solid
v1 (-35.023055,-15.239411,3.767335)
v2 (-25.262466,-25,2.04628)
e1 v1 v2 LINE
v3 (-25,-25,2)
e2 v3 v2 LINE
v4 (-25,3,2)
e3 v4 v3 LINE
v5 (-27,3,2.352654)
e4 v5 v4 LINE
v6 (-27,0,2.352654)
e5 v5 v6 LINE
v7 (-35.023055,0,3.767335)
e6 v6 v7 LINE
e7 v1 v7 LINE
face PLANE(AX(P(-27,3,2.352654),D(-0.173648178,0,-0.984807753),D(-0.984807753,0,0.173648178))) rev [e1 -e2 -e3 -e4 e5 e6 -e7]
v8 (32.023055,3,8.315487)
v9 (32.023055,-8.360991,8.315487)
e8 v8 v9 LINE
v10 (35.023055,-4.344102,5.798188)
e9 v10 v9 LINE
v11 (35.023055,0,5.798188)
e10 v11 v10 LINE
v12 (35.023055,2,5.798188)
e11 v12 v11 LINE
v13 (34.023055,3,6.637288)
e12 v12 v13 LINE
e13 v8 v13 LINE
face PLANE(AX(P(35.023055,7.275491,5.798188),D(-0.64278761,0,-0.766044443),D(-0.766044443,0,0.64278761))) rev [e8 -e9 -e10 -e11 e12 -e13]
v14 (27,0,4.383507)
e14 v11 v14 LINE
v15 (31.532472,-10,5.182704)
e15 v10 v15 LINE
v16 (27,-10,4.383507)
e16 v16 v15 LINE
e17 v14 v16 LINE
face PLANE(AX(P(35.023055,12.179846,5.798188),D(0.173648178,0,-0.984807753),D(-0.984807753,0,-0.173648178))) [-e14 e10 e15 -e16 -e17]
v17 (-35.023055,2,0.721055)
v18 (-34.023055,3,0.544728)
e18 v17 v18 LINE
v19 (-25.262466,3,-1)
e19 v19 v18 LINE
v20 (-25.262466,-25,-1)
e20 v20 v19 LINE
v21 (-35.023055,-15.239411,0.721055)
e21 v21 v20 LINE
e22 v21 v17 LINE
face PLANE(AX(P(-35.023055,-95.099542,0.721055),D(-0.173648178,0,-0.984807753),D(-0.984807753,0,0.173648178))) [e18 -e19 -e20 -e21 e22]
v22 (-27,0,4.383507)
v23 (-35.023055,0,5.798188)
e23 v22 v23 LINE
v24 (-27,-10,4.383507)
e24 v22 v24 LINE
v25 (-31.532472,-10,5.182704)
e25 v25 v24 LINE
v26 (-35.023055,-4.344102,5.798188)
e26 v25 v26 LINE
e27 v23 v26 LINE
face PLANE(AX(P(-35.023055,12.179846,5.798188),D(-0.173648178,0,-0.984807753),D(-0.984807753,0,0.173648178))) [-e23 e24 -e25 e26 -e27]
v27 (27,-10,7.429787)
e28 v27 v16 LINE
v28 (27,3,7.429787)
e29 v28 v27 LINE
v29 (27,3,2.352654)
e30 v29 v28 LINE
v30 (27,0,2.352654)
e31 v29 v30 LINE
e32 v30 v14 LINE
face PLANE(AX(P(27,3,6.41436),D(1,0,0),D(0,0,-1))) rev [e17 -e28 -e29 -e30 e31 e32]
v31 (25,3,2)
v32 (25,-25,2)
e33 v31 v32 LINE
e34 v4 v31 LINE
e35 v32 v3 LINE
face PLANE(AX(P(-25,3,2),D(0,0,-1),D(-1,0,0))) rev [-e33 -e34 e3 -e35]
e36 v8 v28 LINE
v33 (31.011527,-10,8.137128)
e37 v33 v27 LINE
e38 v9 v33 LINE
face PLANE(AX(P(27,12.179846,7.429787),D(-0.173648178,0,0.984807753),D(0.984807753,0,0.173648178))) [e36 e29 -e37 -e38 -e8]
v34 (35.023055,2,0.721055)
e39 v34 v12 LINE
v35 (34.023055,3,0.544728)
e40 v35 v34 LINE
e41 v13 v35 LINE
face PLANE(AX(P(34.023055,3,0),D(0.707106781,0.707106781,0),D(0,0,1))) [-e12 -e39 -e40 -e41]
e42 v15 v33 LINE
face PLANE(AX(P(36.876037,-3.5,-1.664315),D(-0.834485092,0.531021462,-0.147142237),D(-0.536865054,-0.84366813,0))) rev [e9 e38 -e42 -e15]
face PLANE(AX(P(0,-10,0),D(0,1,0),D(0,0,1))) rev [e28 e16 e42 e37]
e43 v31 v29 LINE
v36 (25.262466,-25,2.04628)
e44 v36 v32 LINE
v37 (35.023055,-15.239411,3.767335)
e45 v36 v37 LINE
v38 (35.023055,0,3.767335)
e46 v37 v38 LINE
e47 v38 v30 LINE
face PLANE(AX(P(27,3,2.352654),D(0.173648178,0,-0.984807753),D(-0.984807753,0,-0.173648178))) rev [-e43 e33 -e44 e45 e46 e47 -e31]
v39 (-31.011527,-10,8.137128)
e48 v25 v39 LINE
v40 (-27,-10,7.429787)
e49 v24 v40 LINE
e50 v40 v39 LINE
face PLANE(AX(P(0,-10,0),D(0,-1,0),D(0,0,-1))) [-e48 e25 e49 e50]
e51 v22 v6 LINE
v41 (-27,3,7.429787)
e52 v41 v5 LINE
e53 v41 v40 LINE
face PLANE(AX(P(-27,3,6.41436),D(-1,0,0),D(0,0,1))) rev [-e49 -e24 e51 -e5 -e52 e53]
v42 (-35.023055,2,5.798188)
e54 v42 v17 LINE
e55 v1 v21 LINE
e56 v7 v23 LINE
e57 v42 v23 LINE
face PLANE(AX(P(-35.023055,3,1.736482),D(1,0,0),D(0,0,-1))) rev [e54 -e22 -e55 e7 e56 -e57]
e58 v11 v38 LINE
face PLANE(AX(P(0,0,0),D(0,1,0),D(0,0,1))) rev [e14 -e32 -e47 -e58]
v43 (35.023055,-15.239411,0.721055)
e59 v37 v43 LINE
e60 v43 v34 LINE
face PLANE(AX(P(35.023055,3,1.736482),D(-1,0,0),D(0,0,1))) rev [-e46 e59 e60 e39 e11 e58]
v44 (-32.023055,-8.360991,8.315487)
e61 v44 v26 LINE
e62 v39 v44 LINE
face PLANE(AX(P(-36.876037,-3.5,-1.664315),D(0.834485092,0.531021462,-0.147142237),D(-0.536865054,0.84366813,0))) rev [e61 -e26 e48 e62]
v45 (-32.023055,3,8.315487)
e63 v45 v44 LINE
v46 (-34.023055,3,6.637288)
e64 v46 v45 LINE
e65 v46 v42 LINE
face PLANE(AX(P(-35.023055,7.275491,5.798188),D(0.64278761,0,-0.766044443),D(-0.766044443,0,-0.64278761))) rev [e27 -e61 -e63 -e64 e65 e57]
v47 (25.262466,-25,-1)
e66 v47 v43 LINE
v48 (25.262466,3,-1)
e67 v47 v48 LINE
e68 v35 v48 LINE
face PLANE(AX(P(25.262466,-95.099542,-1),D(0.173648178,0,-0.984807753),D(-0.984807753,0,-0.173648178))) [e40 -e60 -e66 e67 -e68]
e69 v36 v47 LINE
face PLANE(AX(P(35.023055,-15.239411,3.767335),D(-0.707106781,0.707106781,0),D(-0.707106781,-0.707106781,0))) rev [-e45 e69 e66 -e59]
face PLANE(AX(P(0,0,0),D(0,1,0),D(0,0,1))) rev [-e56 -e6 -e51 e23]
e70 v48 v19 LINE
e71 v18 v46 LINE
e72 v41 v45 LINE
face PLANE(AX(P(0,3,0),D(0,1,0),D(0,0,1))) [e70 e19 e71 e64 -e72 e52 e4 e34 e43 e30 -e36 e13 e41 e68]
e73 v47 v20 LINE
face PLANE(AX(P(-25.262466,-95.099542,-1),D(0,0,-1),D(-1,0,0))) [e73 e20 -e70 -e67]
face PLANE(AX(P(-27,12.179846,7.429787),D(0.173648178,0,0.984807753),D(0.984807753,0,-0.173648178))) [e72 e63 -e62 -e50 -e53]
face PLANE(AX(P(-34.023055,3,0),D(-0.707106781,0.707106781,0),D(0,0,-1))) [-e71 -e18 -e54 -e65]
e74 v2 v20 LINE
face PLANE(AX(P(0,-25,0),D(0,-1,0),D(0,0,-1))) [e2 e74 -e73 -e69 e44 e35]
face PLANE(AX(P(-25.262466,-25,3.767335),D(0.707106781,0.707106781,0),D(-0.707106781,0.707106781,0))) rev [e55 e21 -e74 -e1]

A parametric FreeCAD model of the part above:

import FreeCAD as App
import Part
import Sketcher
Q = App.Units.Quantity


def edges_at(feature, points):
    """Names of the edges that pass closest to the given points."""
    edges = feature.Shape.Edges
    near = lambda p: min(range(len(edges)), key=lambda i: edges[i].distToShape(Part.Vertex(*p))[0])
    return sorted({f"Edge{near(p) + 1}" for p in points})


def add_polygon(sketch, points):
    """Adds a closed chain of lines whose ends are joined by coincident constraints."""
    first, n = sketch.GeometryCount, len(points)
    for a, b in zip(points, points[1:] + points[:1]):
        sketch.addGeometry(Part.LineSegment(App.Vector(*a, 0), App.Vector(*b, 0)), False)
    for i in range(n):
        sketch.addConstraint(Sketcher.Constraint("Coincident", first + i, 2, first + (i + 1) % n, 1))

doc = App.newDocument("Part")
body = doc.addObject("PartDesign::Body", "Body")

# Sketch on XZ plane
sketch1 = doc.addObject("Sketcher::SketchObject", "Sketch")
body.addObject(sketch1)
sketch1.AttachmentSupport = (doc.XZ_Plane, [""])
sketch1.MapMode = "FlatFace"
add_polygon(sketch1, [(-27, 6.4), (-27, 2.4), (-25, 2), (25, 2), (27, 2.4), (27, 6.4), (35, 7.8), (35, 1.7), (25.2, 0), (-25.2, 0), (-35, 1.7), (-35, 7.8)])  # lines 0-11
sketch1.addConstraint([
    Sketcher.Constraint("Vertical", 0),
    Sketcher.Constraint("Horizontal", 2),
    Sketcher.Constraint("Vertical", 4),
    Sketcher.Constraint("Vertical", 6),
    Sketcher.Constraint("Horizontal", 8),
    Sketcher.Constraint("Vertical", 10),
    Sketcher.Constraint("Symmetric", 7, 2, 8, 2, -1, 1),
    Sketcher.Constraint("Symmetric", 0, 2, 3, 2, -2),
    Sketcher.Constraint("Symmetric", 6, 2, 9, 2, -2),
    Sketcher.Constraint("Parallel", 3, 5),
    Sketcher.Constraint("Parallel", 5, 7),
    Sketcher.Constraint("Parallel", 1, 9),
    Sketcher.Constraint("Parallel", 9, 11),
    Sketcher.Constraint("Horizontal", 5, 2, 10, 2),
    Sketcher.Constraint("DistanceX", 2, 1, 2, 2, 50.0),
    Sketcher.Constraint("Angle", 1, Q("-10 deg")),
    Sketcher.Constraint("Distance", 7, 10.0),
    Sketcher.Constraint("DistanceX", 0, 2, -1, 1, 27.0),
    Sketcher.Constraint("DistanceY", -1, 1, 1, 2, 2.0),
    Sketcher.Constraint("DistanceY", 6, 2, 6, 1, 6.09256),
    Sketcher.Constraint("DistanceX", 8, 2, 8, 1, 50.349955),
])
pad1 = doc.addObject("PartDesign::Pad", "Pad")
body.addObject(pad1)
pad1.Profile = sketch1
pad1.Length = 3
pad1.Reversed = True

# Sketch on XZ plane
sketch2 = doc.addObject("Sketcher::SketchObject", "Sketch001")
body.addObject(sketch2)
sketch2.AttachmentSupport = (doc.XZ_Plane, [""])
sketch2.MapMode = "FlatFace"
add_polygon(sketch2, [(25.2, 0), (35, 1.7), (35, 3.8), (27, 2.4), (25, 2), (-25, 2), (-27, 2.4), (-35, 3.8), (-35, 1.7), (-25.2, 0)])  # lines 0-9
sketch2.addConstraint([
    Sketcher.Constraint("Vertical", 1),
    Sketcher.Constraint("Horizontal", 4),
    Sketcher.Constraint("Vertical", 7),
    Sketcher.Constraint("Horizontal", 9),
    Sketcher.Constraint("Symmetric", 8, 2, 9, 2, -1, 1),
    Sketcher.Constraint("Symmetric", 2, 2, 5, 2, -2),
    Sketcher.Constraint("Symmetric", 1, 2, 6, 2, -2),
    Sketcher.Constraint("Parallel", 0, 2),
    Sketcher.Constraint("Parallel", 2, 3),
    Sketcher.Constraint("Parallel", 5, 6),
    Sketcher.Constraint("Parallel", 6, 8),
    Sketcher.Constraint("DistanceX", 4, 2, 4, 1, 50.0),
    Sketcher.Constraint("Angle", 0, Q("10 deg")),
    Sketcher.Constraint("Distance", 0, 10.0),
    Sketcher.Constraint("DistanceX", -1, 1, 2, 2, 27.0),
    Sketcher.Constraint("DistanceY", -1, 1, 3, 2, 2.0),
    Sketcher.Constraint("DistanceX", 9, 1, 9, 2, 50.349955),
])
pad2 = doc.addObject("PartDesign::Pad", "Pad001")
body.addObject(pad2)
pad2.Profile = sketch2
pad2.Length = 25

# Sketch on XZ plane
sketch3 = doc.addObject("Sketcher::SketchObject", "Sketch002")
body.addObject(sketch3)
sketch3.AttachmentSupport = (doc.XZ_Plane, [""])
sketch3.MapMode = "FlatFace"
sketch3.AttachmentOffset = App.Placement(App.Vector(0, 0, -3), App.Rotation())
add_polygon(sketch3, [(-35, 5.8), (-27, 4.4), (-27, 7.4), (-35, 8.8)])  # lines 0-3
add_polygon(sketch3, [(35, 8.8), (27, 7.4), (27, 4.4), (35, 5.8)])  # lines 4-7
sketch3.addConstraint([
    Sketcher.Constraint("Vertical", 1),
    Sketcher.Constraint("Vertical", 3),
    Sketcher.Constraint("Vertical", 5),
    Sketcher.Constraint("Vertical", 7),
    Sketcher.Constraint("Symmetric", 1, 2, 4, 2, -2),
    Sketcher.Constraint("Symmetric", 3, 2, 6, 2, -2),
    Sketcher.Constraint("Parallel", 0, 2),
    Sketcher.Constraint("Parallel", 4, 6),
    Sketcher.Constraint("Horizontal", 0, 2, 5, 2),
    Sketcher.Constraint("Angle", 0, Q("-10 deg")),
    Sketcher.Constraint("DistanceX", 0, 2, -1, 1, 27.0),
    Sketcher.Constraint("DistanceY", 1, 1, 1, 2, 3.04628),
    Sketcher.Constraint("DistanceY", 3, 2, 1, 2, 1.631599),
    Sketcher.Constraint("DistanceY", -1, 1, 2, 2, 8.844468),
])
pad3 = doc.addObject("PartDesign::Pad", "Pad002")
body.addObject(pad3)
pad3.Profile = sketch3
pad3.Length = 13

# Sketch on XZ plane
sketch4 = doc.addObject("Sketcher::SketchObject", "Sketch003")
body.addObject(sketch4)
sketch4.AttachmentSupport = (doc.XZ_Plane, [""])
sketch4.MapMode = "FlatFace"
sketch4.AttachmentOffset = App.Placement(App.Vector(0, 0, -3), App.Rotation())
add_polygon(sketch4, [(-25.3, -1), (-35, 0.7), (-35, 1.7), (-25.2, 0), (25.2, 0), (35, 1.7), (35, 0.7), (25.3, -1)])  # lines 0-7
sketch4.addConstraint([
    Sketcher.Constraint("Vertical", 1),
    Sketcher.Constraint("Horizontal", 3),
    Sketcher.Constraint("Vertical", 5),
    Sketcher.Constraint("Horizontal", 7),
    Sketcher.Constraint("Symmetric", 2, 2, 3, 2, -1, 1),
    Sketcher.Constraint("Symmetric", 1, 2, 4, 2, -2),
    Sketcher.Constraint("Parallel", 0, 2),
    Sketcher.Constraint("Parallel", 4, 6),
    Sketcher.Constraint("Horizontal", 0, 2, 5, 2),
    Sketcher.Constraint("Angle", 0, Q("170 deg")),
    Sketcher.Constraint("Distance", 2, 10.0),
    Sketcher.Constraint("DistanceY", 6, 2, -1, 1, 1.0),
    Sketcher.Constraint("DistanceX", 7, 2, 7, 1, 50.524932),
    Sketcher.Constraint("Distance", 0, 9.911162),
])
pad4 = doc.addObject("PartDesign::Pad", "Pad003")
body.addObject(pad4)
pad4.Profile = sketch4
pad4.Length = 28

# Sketch on XY plane
sketch5 = doc.addObject("Sketcher::SketchObject", "Sketch004")
body.addObject(sketch5)
sketch5.AttachmentSupport = (doc.XY_Plane, [""])
sketch5.MapMode = "FlatFace"
sketch5.AttachmentOffset = App.Placement(App.Vector(0, 0, 3.767335), App.Rotation())
add_polygon(sketch5, [(35, -25), (25, -25), (35, -15)])  # lines 0-2
add_polygon(sketch5, [(-35, -15), (-25, -25), (-35, -25)])  # lines 3-5
sketch5.addConstraint([
    Sketcher.Constraint("Horizontal", 0),
    Sketcher.Constraint("Vertical", 2),
    Sketcher.Constraint("Horizontal", 4),
    Sketcher.Constraint("Vertical", 5),
    Sketcher.Constraint("Symmetric", 0, 2, 3, 2, -2),
    Sketcher.Constraint("Symmetric", 1, 2, 5, 2, -2),
    Sketcher.Constraint("Perpendicular", 1, 3),
    Sketcher.Constraint("DistanceY", 0, 2, -1, 1, 25.0),
    Sketcher.Constraint("DistanceX", 0, 2, 0, 1, 9.760589),
    Sketcher.Constraint("DistanceX", 3, 2, 0, 2, 50.524932),
])
pocket1 = doc.addObject("PartDesign::Pocket", "Pocket")
body.addObject(pocket1)
pocket1.Profile = sketch5
pocket1.Length = 4.767335

# Sketch on an angled plane
sketch6 = doc.addObject("Sketcher::SketchObject", "Sketch005")
body.addObject(sketch6)
sketch6.Placement = App.Placement(App.Vector(0.456419, 0, 2.58848), App.Rotation(App.Vector(0.984807753, 0, -0.173648178), App.Vector(0, 1, 0), App.Vector(0.173648178, 0, 0.984807753), "ZXY"))
add_polygon(sketch6, [(-32, -10), (-36, -3.5), (-36, -10)])  # lines 0-2
sketch6.addConstraint([
    Sketcher.Constraint("Vertical", 1),
    Sketcher.Constraint("Horizontal", 2),
    Sketcher.Constraint("DistanceY", 1, 2, 1, 1, 6.5),
    Sketcher.Constraint("DistanceY", 1, 2, -1, 1, 10.0),
    Sketcher.Constraint("Distance", 0, 7.670898),
    Sketcher.Constraint("DistanceX", 0, 2, -1, 1, 36.026802),
])
pocket2 = doc.addObject("PartDesign::Pocket", "Pocket001")
body.addObject(pocket2)
pocket2.Profile = sketch6
pocket2.Length = 3

# Sketch on an angled plane
sketch7 = doc.addObject("Sketcher::SketchObject", "Sketch006")
body.addObject(sketch7)
sketch7.Placement = App.Placement(App.Vector(-0.456419, 0, 2.58848), App.Rotation(App.Vector(0.984807753, 0, 0.173648178), App.Vector(0, 1, 0), App.Vector(-0.173648178, 0, 0.984807753), "ZXY"))
add_polygon(sketch7, [(36, -3.5), (32, -10), (36, -10)])  # lines 0-2
sketch7.addConstraint([
    Sketcher.Constraint("Horizontal", 1),
    Sketcher.Constraint("Vertical", 2),
    Sketcher.Constraint("DistanceY", 2, 1, 2, 2, 6.5),
    Sketcher.Constraint("DistanceY", 0, 2, -1, 1, 10.0),
    Sketcher.Constraint("Distance", 0, 7.670898),
    Sketcher.Constraint("DistanceX", -1, 1, 1, 2, 36.026802),
])
pocket3 = doc.addObject("PartDesign::Pocket", "Pocket002")
body.addObject(pocket3)
pocket3.Profile = sketch7
pocket3.Length = 3

# Sketch on XZ plane
sketch8 = doc.addObject("Sketcher::SketchObject", "Sketch007")
body.addObject(sketch8)
sketch8.AttachmentSupport = (doc.XZ_Plane, [""])
sketch8.MapMode = "FlatFace"
sketch8.AttachmentOffset = App.Placement(App.Vector(0, 0, -3), App.Rotation())
add_polygon(sketch8, [(32, 8.3), (35, 5.8), (35, 8.8)])  # lines 0-2
sketch8.addConstraint([
    Sketcher.Constraint("Vertical", 1),
    Sketcher.Constraint("Angle", 0, Q("-40 deg")),
    Sketcher.Constraint("Angle", 2, Q("-170 deg")),
    Sketcher.Constraint("DistanceX", 2, 2, 1, 2, 3.0),
    Sketcher.Constraint("DistanceY", -1, 1, 0, 2, 5.798188),
    Sketcher.Constraint("DistanceX", -1, 1, 0, 2, 35.023055),
])
pocket4 = doc.addObject("PartDesign::Pocket", "Pocket003")
body.addObject(pocket4)
pocket4.Profile = sketch8
pocket4.Length = 11.360991
pocket4.Reversed = True

# Sketch on XZ plane
sketch9 = doc.addObject("Sketcher::SketchObject", "Sketch008")
body.addObject(sketch9)
sketch9.AttachmentSupport = (doc.XZ_Plane, [""])
sketch9.MapMode = "FlatFace"
sketch9.AttachmentOffset = App.Placement(App.Vector(0, 0, -3), App.Rotation())
add_polygon(sketch9, [(-35, 5.8), (-32, 8.3), (-35, 8.8)])  # lines 0-2
sketch9.addConstraint([
    Sketcher.Constraint("Vertical", 2),
    Sketcher.Constraint("Angle", 0, Q("40 deg")),
    Sketcher.Constraint("Angle", 1, Q("170 deg")),
    Sketcher.Constraint("DistanceX", 1, 2, 0, 2, 3.0),
    Sketcher.Constraint("DistanceY", -1, 1, 1, 2, 8.844468),
    Sketcher.Constraint("DistanceX", 0, 2, -1, 1, 32.023055),
])
pocket5 = doc.addObject("PartDesign::Pocket", "Pocket004")
body.addObject(pocket5)
pocket5.Profile = sketch9
pocket5.Length = 11.360991
pocket5.Reversed = True
doc.recompute()

chamfer = doc.addObject("PartDesign::Chamfer", "Chamfer")
body.addObject(chamfer)
chamfer.Base = (pocket5, edges_at(pocket5, [(35.023, 3, 3.26), (-35.023, 3, 3.26)]))
chamfer.Size = 1

doc.recompute()
